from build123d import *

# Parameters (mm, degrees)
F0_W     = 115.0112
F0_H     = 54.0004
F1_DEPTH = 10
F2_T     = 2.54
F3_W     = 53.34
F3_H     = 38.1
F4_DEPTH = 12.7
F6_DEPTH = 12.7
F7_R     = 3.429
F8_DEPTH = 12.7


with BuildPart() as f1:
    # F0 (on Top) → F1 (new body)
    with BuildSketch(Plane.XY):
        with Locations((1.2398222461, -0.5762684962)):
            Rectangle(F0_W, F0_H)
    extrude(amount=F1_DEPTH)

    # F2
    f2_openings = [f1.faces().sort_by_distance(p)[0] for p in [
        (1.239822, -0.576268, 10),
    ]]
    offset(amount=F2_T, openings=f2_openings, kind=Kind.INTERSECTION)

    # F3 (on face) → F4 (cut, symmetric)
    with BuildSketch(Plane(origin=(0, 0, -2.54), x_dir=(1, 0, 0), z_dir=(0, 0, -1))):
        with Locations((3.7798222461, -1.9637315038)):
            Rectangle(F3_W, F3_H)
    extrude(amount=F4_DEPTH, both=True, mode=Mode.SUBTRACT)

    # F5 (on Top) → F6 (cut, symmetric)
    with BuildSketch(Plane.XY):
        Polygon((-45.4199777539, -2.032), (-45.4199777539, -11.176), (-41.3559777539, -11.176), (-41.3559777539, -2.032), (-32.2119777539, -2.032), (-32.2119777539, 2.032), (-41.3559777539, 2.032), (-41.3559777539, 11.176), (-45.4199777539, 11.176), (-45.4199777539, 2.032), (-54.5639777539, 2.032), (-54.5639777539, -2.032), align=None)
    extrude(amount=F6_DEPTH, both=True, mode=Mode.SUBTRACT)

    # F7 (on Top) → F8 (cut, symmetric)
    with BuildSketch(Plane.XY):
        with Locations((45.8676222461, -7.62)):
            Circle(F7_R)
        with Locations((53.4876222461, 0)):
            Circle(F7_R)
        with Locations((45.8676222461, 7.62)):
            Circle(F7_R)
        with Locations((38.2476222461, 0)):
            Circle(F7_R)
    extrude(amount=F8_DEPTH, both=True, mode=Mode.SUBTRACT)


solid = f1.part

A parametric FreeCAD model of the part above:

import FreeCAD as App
import Part
import Sketcher
from FreeCAD import Vector
Q = App.Units.Quantity


def faces_at(feature, points):
    """Names of the faces that lie closest to the given points."""
    faces = feature.Shape.Faces
    near = lambda p: min(range(len(faces)), key=lambda i: faces[i].distToShape(Part.Vertex(*p))[0])
    return sorted({f"Face{near(p) + 1}" for p in points})


def add_polygon(sketch, points):
    """Adds a closed chain of lines whose ends are joined by coincident constraints."""
    first, n = sketch.GeometryCount, len(points)
    for a, b in zip(points, points[1:] + points[:1]):
        sketch.addGeometry(Part.LineSegment(App.Vector(*a, 0), App.Vector(*b, 0)), False)
    for i in range(n):
        sketch.addConstraint(Sketcher.Constraint("Coincident", first + i, 2, first + (i + 1) % n, 1))

doc = App.newDocument("Part")
body = doc.addObject("PartDesign::Body", "Body")

sketch1 = body.newObject("Sketcher::SketchObject", "Sketch")
sketch1.AttachmentSupport = (doc.getObject("XY_Plane"), [""])
sketch1.MapMode = "FlatFace"
add_polygon(sketch1, [(-56.265778, 26.423932), (-56.265778, -27.576468), (58.745422, -27.576468), (58.745422, 26.423932)])
sketch1.addConstraint(Sketcher.Constraint("Vertical", 0))
sketch1.addConstraint(Sketcher.Constraint("Horizontal", 1))
sketch1.addConstraint(Sketcher.Constraint("Vertical", 2))
sketch1.addConstraint(Sketcher.Constraint("Horizontal", 3))
sketch1.addConstraint(Sketcher.Constraint("DistanceX", 1, 1, 1, 2, Q("4.528 in")))
sketch1.addConstraint(Sketcher.Constraint("DistanceY", 0, 2, 0, 1, Q("2.126 in")))
sketch1.addConstraint(Sketcher.Constraint("DistanceY", 0, 2, -1, 1, Q("27.576468 mm")))
sketch1.addConstraint(Sketcher.Constraint("DistanceX", 0, 2, -1, 1, Q("56.265778 mm")))
pad1 = body.newObject("PartDesign::Pad", "Pad")
pad1.Profile = sketch1
pad1.Length = 10
doc.recompute()

thickness = body.newObject("PartDesign::Thickness", "Thickness")
thickness.Base = (pad1, faces_at(pad1, [(1.24, -0.576, 10)]))
thickness.Value = Q("0.1 in")
thickness.Reversed = False
thickness.Join = "Intersection"

sketch2 = body.newObject("Sketcher::SketchObject", "Sketch001")
sketch2.AttachmentSupport = (doc.getObject("XY_Plane"), [""])
sketch2.MapMode = "FlatFace"
sketch2.AttachmentOffset = App.Placement(Vector(0, 0, -0.1 * 25.4), App.Rotation())
add_polygon(sketch2, [(-22.890178, -17.086268), (-22.890178, 21.013732), (30.449822, 21.013732), (30.449822, -17.086268)])
sketch2.addConstraint(Sketcher.Constraint("Vertical", 0))
sketch2.addConstraint(Sketcher.Constraint("Horizontal", 1))
sketch2.addConstraint(Sketcher.Constraint("Vertical", 2))
sketch2.addConstraint(Sketcher.Constraint("Horizontal", 3))
sketch2.addConstraint(Sketcher.Constraint("DistanceX", 1, 1, 1, 2, Q("2.1 in")))
sketch2.addConstraint(Sketcher.Constraint("DistanceY", 0, 1, 0, 2, Q("1.5 in")))
sketch2.addConstraint(Sketcher.Constraint("DistanceY", -1, 1, 0, 2, Q("21.013732 mm")))
sketch2.addConstraint(Sketcher.Constraint("DistanceX", 0, 2, -1, 1, Q("22.890178 mm")))
pocket1 = body.newObject("PartDesign::Pocket", "Pocket")
pocket1.Profile = sketch2
pocket1.Length = Q("1 in")
pocket1.Midplane = True

sketch3 = body.newObject("Sketcher::SketchObject", "Sketch002")
sketch3.AttachmentSupport = (doc.getObject("XY_Plane"), [""])
sketch3.MapMode = "FlatFace"
add_polygon(sketch3, [(-45.419978, -2.032), (-45.419978, -11.176), (-41.355978, -11.176), (-41.355978, -2.032), (-32.211978, -2.032), (-32.211978, 2.032), (-41.355978, 2.032), (-41.355978, 11.176), (-45.419978, 11.176), (-45.419978, 2.032), (-54.563978, 2.032), (-54.563978, -2.032)])
sketch3.addConstraint(Sketcher.Constraint("Vertical", 0))
sketch3.addConstraint(Sketcher.Constraint("Horizontal", 1))
sketch3.addConstraint(Sketcher.Constraint("Vertical", 2))
sketch3.addConstraint(Sketcher.Constraint("Horizontal", 3))
sketch3.addConstraint(Sketcher.Constraint("Vertical", 4))
sketch3.addConstraint(Sketcher.Constraint("Horizontal", 5))
sketch3.addConstraint(Sketcher.Constraint("Vertical", 6))
sketch3.addConstraint(Sketcher.Constraint("Horizontal", 7))
sketch3.addConstraint(Sketcher.Constraint("Vertical", 8))
sketch3.addConstraint(Sketcher.Constraint("Horizontal", 9))
sketch3.addConstraint(Sketcher.Constraint("Vertical", 10))
sketch3.addConstraint(Sketcher.Constraint("Horizontal", 11))
sketch3.addConstraint(Sketcher.Constraint("Symmetric", 2, 2, 5, 2, -1))
sketch3.addConstraint(Sketcher.Constraint("Symmetric", 0, 2, 7, 2, -1))
sketch3.addConstraint(Sketcher.Constraint("Horizontal", 5, 2, 8, 2))
sketch3.addConstraint(Sketcher.Constraint("Horizontal", 3, 2, 10, 2))
sketch3.addConstraint(Sketcher.Constraint("Equal", 5, 9))
sketch3.addConstraint(Sketcher.Constraint("Equal", 11, 0))
sketch3.addConstraint(Sketcher.Constraint("Equal", 7, 4))
sketch3.addConstraint(Sketcher.Constraint("DistanceX", 1, 1, 1, 2, Q("0.16 in")))
sketch3.addConstraint(Sketcher.Constraint("DistanceX", 3, 1, 3, 2, Q("0.36 in")))
sketch3.addConstraint(Sketcher.Constraint("DistanceX", 0, 2, -1, 1, Q("45.419978 mm")))
pocket2 = body.newObject("PartDesign::Pocket", "Pocket001")
pocket2.Profile = sketch3
pocket2.Length = Q("1 in")
pocket2.Midplane = True

sketch4 = body.newObject("Sketcher::SketchObject", "Sketch003")
sketch4.AttachmentSupport = (doc.getObject("XY_Plane"), [""])
sketch4.MapMode = "FlatFace"
sketch4.addGeometry(Part.Circle(Vector(45.867622, -7.62, 0), Vector(0, 0, 1), 3.429), False)
sketch4.addGeometry(Part.Circle(Vector(53.487622, 0, 0), Vector(0, 0, 1), 3.429), False)
sketch4.addGeometry(Part.Circle(Vector(45.867622, 7.62, 0), Vector(0, 0, 1), 3.429), False)
sketch4.addGeometry(Part.Circle(Vector(38.247622, 0, 0), Vector(0, 0, 1), 3.429), False)
sketch4.addConstraint(Sketcher.Constraint("Equal", 0, 1))
sketch4.addConstraint(Sketcher.Constraint("Equal", 1, 2))
sketch4.addConstraint(Sketcher.Constraint("Equal", 2, 3))
sketch4.addConstraint(Sketcher.Constraint("Symmetric", 0, 3, 2, 3, -1))
sketch4.addConstraint(Sketcher.Constraint("PointOnObject", 1, 3, -1))
sketch4.addConstraint(Sketcher.Constraint("PointOnObject", 3, 3, -1))
sketch4.addConstraint(Sketcher.Constraint("Diameter", 0, Q("0.27 in")))
sketch4.addConstraint(Sketcher.Constraint("DistanceY", 0, 3, -1, 1, Q("0.3 in")))
sketch4.addConstraint(Sketcher.Constraint("DistanceX", 0, 3, 1, 3, Q("0.3 in")))
sketch4.addConstraint(Sketcher.Constraint("DistanceX", 3, 3, 0, 3, Q("0.3 in")))
sketch4.addConstraint(Sketcher.Constraint("DistanceX", -1, 1, 0, 3, Q("45.867622 mm")))
pocket3 = body.newObject("PartDesign::Pocket", "Pocket002")
pocket3.Profile = sketch4
pocket3.Length = Q("1 in")
pocket3.Midplane = True

doc.recompute()
